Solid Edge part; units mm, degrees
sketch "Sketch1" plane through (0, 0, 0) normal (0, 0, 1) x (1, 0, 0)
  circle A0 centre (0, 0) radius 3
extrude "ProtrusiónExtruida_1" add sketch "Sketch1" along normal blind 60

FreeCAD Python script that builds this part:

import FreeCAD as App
import Part
import Sketcher
from FreeCAD import Vector
Q = App.Units.Quantity

doc = App.newDocument("Part")
body = doc.addObject("PartDesign::Body", "Body")

# Sketch on XY plane
sketch1 = doc.addObject("Sketcher::SketchObject", "Sketch")
body.addObject(sketch1)
sketch1.AttachmentSupport = (doc.XY_Plane, [""])
sketch1.MapMode = "FlatFace"
sketch1.addGeometry(Part.Circle(Vector(0, 0, 0), Vector(0, 0, 1), 3), False)
sketch1.addConstraint([
    Sketcher.Constraint("Coincident", 0, 3, -1, 1),
    Sketcher.Constraint("Diameter", 0, Q("6 mm")),
])
pad1 = doc.addObject("PartDesign::Pad", "Pad")
body.addObject(pad1)
pad1.Profile = sketch1
pad1.Length = 60

doc.recompute()
